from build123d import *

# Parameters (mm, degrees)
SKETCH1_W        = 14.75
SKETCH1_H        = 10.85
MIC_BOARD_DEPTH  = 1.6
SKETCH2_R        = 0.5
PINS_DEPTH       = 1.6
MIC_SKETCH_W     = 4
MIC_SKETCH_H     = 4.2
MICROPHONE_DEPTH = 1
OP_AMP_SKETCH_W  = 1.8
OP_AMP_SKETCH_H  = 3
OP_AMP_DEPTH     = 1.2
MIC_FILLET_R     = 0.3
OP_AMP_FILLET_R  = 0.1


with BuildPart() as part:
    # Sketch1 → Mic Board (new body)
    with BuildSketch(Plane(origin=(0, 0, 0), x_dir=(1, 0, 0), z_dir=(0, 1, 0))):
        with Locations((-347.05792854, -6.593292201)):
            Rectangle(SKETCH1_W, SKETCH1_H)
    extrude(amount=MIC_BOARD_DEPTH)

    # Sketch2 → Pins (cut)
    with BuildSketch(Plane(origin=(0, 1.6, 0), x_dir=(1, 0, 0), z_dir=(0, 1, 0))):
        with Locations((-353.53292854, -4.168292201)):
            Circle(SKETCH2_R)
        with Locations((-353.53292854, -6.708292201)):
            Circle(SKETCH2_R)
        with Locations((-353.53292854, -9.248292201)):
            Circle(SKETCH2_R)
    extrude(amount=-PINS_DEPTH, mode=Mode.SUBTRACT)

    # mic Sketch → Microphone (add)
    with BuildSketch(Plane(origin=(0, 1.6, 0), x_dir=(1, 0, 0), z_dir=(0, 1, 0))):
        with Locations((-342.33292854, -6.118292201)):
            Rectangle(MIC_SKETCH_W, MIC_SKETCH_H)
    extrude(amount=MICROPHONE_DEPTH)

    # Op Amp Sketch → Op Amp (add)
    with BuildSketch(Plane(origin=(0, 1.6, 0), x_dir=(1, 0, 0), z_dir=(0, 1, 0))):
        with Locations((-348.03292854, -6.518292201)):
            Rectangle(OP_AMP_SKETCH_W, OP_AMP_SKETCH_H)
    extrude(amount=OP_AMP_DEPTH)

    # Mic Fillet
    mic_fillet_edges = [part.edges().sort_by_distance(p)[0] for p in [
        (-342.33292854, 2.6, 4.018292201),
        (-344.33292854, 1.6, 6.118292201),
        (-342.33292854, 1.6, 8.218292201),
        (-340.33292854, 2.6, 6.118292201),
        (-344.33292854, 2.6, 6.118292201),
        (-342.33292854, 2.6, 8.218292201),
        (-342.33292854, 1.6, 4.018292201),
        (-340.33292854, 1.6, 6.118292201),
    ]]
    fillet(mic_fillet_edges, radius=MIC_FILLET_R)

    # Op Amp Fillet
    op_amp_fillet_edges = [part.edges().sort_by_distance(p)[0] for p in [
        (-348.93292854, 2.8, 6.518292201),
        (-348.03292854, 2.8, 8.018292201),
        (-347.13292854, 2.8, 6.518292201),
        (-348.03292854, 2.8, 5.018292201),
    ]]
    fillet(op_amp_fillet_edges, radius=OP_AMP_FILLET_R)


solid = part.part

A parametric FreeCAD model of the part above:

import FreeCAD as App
import Part
import Sketcher
Q = App.Units.Quantity


def edges_at(feature, points):
    """Names of the edges that pass closest to the given points."""
    edges = feature.Shape.Edges
    near = lambda p: min(range(len(edges)), key=lambda i: edges[i].distToShape(Part.Vertex(*p))[0])
    return sorted({f"Edge{near(p) + 1}" for p in points})

doc = App.newDocument("Part")
body = doc.addObject("PartDesign::Body", "Body")

# Sketch on XZ plane
sketch1 = body.newObject("Sketcher::SketchObject", "Sketch")
sketch1.AttachmentSupport = (doc.getObject("XZ_Plane"), [""])
sketch1.MapMode = "FlatFace"
sketch1.addGeometry([
    Part.LineSegment(App.Vector(-354, 1, 0), App.Vector(-354, 12, 0)),
    Part.LineSegment(App.Vector(-354, 12, 0), App.Vector(-340, 12, 0)),
    Part.LineSegment(App.Vector(-340, 12, 0), App.Vector(-340, 1, 0)),
    Part.LineSegment(App.Vector(-340, 1, 0), App.Vector(-354, 1, 0)),
], False)
sketch1.addConstraint([
    Sketcher.Constraint("Coincident", 0, 2, 1, 1),
    Sketcher.Constraint("Coincident", 1, 2, 2, 1),
    Sketcher.Constraint("Coincident", 2, 2, 3, 1),
    Sketcher.Constraint("Coincident", 3, 2, 0, 1),
    Sketcher.Constraint("Vertical", 0),
    Sketcher.Constraint("Horizontal", 1),
    Sketcher.Constraint("Vertical", 2),
    Sketcher.Constraint("Horizontal", 3),
    Sketcher.Constraint("DistanceX", 1, 1, 1, 2, Q("14.75 mm")),
    Sketcher.Constraint("DistanceY", 0, 1, 0, 2, Q("10.85 mm")),
    Sketcher.Constraint("DistanceX", 0, 2, -1, 1, Q("354.432929 mm")),
    Sketcher.Constraint("DistanceY", -1, 1, 0, 2, Q("12.018292 mm")),
])
pad1 = body.newObject("PartDesign::Pad", "Pad")
pad1.Profile = sketch1
pad1.Length = 1.6
pad1.Reversed = True

# Sketch on XZ plane
sketch2 = body.newObject("Sketcher::SketchObject", "Sketch001")
sketch2.AttachmentSupport = (doc.getObject("XZ_Plane"), [""])
sketch2.MapMode = "FlatFace"
sketch2.AttachmentOffset = App.Placement(App.Vector(0, 0, -1.6), App.Rotation())
sketch2.addGeometry([
    Part.Circle(App.Vector(-353.5, 4.2, 0), App.Vector(0, 0, 1), 0.5),
    Part.Circle(App.Vector(-353.5, 6.7, 0), App.Vector(0, 0, 1), 0.5),
    Part.Circle(App.Vector(-353.5, 9.2, 0), App.Vector(0, 0, 1), 0.5),
], False)
sketch2.addConstraint([
    Sketcher.Constraint("Equal", 0, 1),
    Sketcher.Constraint("Equal", 1, 2),
    Sketcher.Constraint("Vertical", 0, 3, 1, 3),
    Sketcher.Constraint("Vertical", 1, 3, 2, 3),
    Sketcher.Constraint("Diameter", 0, Q("1 mm")),
    Sketcher.Constraint("DistanceY", 0, 3, 1, 3, Q("2.54 mm")),
    Sketcher.Constraint("DistanceY", 1, 3, 2, 3, Q("2.54 mm")),
    Sketcher.Constraint("DistanceX", 0, 3, -1, 1, Q("353.532929 mm")),
    Sketcher.Constraint("DistanceY", -1, 1, 0, 3, Q("4.168292 mm")),
])
pocket1 = body.newObject("PartDesign::Pocket", "Pocket")
pocket1.Profile = sketch2
pocket1.Length = 1.6
pocket1.Reversed = True

# Sketch on XZ plane
sketch3 = body.newObject("Sketcher::SketchObject", "Sketch002")
sketch3.AttachmentSupport = (doc.getObject("XZ_Plane"), [""])
sketch3.MapMode = "FlatFace"
sketch3.AttachmentOffset = App.Placement(App.Vector(0, 0, -1.6), App.Rotation())
sketch3.addGeometry([
    Part.LineSegment(App.Vector(-344.3, 4, 0), App.Vector(-344.3, 8.2, 0)),
    Part.LineSegment(App.Vector(-344.3, 8.2, 0), App.Vector(-340.3, 8.2, 0)),
    Part.LineSegment(App.Vector(-340.3, 8.2, 0), App.Vector(-340.3, 4, 0)),
    Part.LineSegment(App.Vector(-340.3, 4, 0), App.Vector(-344.3, 4, 0)),
], False)
sketch3.addConstraint([
    Sketcher.Constraint("Coincident", 0, 2, 1, 1),
    Sketcher.Constraint("Coincident", 1, 2, 2, 1),
    Sketcher.Constraint("Coincident", 2, 2, 3, 1),
    Sketcher.Constraint("Coincident", 3, 2, 0, 1),
    Sketcher.Constraint("Vertical", 0),
    Sketcher.Constraint("Horizontal", 1),
    Sketcher.Constraint("Vertical", 2),
    Sketcher.Constraint("Horizontal", 3),
    Sketcher.Constraint("DistanceX", 1, 1, 1, 2, Q("4 mm")),
    Sketcher.Constraint("DistanceY", 0, 1, 0, 2, Q("4.2 mm")),
    Sketcher.Constraint("DistanceX", 0, 2, -1, 1, Q("344.332929 mm")),
    Sketcher.Constraint("DistanceY", -1, 1, 0, 2, Q("8.218292 mm")),
])
pad2 = body.newObject("PartDesign::Pad", "Pad001")
pad2.Profile = sketch3
pad2.Length = 1
pad2.Reversed = True

# Sketch on XZ plane
sketch4 = body.newObject("Sketcher::SketchObject", "Sketch003")
sketch4.AttachmentSupport = (doc.getObject("XZ_Plane"), [""])
sketch4.MapMode = "FlatFace"
sketch4.AttachmentOffset = App.Placement(App.Vector(0, 0, -1.6), App.Rotation())
sketch4.addGeometry([
    Part.LineSegment(App.Vector(-348.9, 5, 0), App.Vector(-348.9, 8, 0)),
    Part.LineSegment(App.Vector(-348.9, 8, 0), App.Vector(-347.1, 8, 0)),
    Part.LineSegment(App.Vector(-347.1, 8, 0), App.Vector(-347.1, 5, 0)),
    Part.LineSegment(App.Vector(-347.1, 5, 0), App.Vector(-348.9, 5, 0)),
], False)
sketch4.addConstraint([
    Sketcher.Constraint("Coincident", 0, 2, 1, 1),
    Sketcher.Constraint("Coincident", 1, 2, 2, 1),
    Sketcher.Constraint("Coincident", 2, 2, 3, 1),
    Sketcher.Constraint("Coincident", 3, 2, 0, 1),
    Sketcher.Constraint("Vertical", 0),
    Sketcher.Constraint("Horizontal", 1),
    Sketcher.Constraint("Vertical", 2),
    Sketcher.Constraint("Horizontal", 3),
    Sketcher.Constraint("DistanceY", 0, 1, 0, 2, Q("3 mm")),
    Sketcher.Constraint("DistanceX", 1, 1, 1, 2, Q("1.8 mm")),
    Sketcher.Constraint("DistanceX", 0, 2, -1, 1, Q("348.932929 mm")),
    Sketcher.Constraint("DistanceY", -1, 1, 0, 2, Q("8.018292 mm")),
])
pad3 = body.newObject("PartDesign::Pad", "Pad002")
pad3.Profile = sketch4
pad3.Length = 1.2
pad3.Reversed = True
doc.recompute()

fillet = body.newObject("PartDesign::Fillet", "Fillet")
fillet.Base = (pad3, edges_at(pad3, [
    (-342.333, 2.6, 4.018),
    (-344.333, 1.6, 6.118),
    (-342.333, 1.6, 8.218),
    (-340.333, 2.6, 6.118),
    (-344.333, 2.6, 6.118),
    (-342.333, 2.6, 8.218),
    (-342.333, 1.6, 4.018),
    (-340.333, 1.6, 6.118),
]))
fillet.Radius = 0.3
doc.recompute()

fillet2 = body.newObject("PartDesign::Fillet", "Fillet001")
fillet2.Base = (fillet, edges_at(fillet, [
    (-348.933, 2.8, 6.518),
    (-348.033, 2.8, 8.018),
    (-347.133, 2.8, 6.518),
    (-348.033, 2.8, 5.018),
]))
fillet2.Radius = 0.1

doc.recompute()
